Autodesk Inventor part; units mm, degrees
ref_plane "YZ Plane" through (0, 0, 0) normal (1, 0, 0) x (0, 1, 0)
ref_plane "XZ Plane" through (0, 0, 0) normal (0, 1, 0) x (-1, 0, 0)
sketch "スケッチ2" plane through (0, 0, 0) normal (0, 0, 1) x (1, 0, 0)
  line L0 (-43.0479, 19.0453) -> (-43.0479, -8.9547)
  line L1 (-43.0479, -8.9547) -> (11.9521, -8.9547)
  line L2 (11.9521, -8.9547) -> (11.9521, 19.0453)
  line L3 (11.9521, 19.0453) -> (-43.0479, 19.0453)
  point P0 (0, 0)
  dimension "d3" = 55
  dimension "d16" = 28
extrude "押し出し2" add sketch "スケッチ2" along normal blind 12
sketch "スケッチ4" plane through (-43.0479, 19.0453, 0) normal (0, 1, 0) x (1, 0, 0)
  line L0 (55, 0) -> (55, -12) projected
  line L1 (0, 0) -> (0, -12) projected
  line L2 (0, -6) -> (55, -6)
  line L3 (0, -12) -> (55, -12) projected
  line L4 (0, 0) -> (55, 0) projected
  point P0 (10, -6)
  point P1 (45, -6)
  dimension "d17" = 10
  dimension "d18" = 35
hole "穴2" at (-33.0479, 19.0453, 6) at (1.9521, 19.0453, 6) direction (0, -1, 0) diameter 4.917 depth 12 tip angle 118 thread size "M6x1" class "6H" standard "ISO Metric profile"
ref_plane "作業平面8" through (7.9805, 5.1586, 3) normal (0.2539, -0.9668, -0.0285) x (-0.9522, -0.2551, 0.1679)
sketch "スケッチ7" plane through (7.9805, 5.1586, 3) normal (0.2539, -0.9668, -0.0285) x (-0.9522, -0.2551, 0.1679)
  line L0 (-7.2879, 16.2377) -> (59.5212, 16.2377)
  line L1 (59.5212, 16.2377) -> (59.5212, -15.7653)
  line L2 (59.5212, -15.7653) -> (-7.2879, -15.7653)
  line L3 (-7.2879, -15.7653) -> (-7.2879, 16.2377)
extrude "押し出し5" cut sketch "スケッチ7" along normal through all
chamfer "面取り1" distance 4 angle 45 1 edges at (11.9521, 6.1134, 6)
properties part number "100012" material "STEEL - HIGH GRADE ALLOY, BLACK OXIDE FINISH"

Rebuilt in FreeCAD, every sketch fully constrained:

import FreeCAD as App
import Part
import Sketcher
from FreeCAD import Vector


def edges_at(feature, points):
    """Names of the edges that pass closest to the given points."""
    edges = feature.Shape.Edges
    near = lambda p: min(range(len(edges)), key=lambda i: edges[i].distToShape(Part.Vertex(*p))[0])
    return sorted({f"Edge{near(p) + 1}" for p in points})

doc = App.newDocument("Part")
body = doc.addObject("PartDesign::Body", "Body")

sketch1 = body.newObject("Sketcher::SketchObject", "Sketch")
sketch1.AttachmentSupport = (doc.getObject("XY_Plane"), [""])
sketch1.MapMode = "FlatFace"
sketch1.addGeometry([
    Part.LineSegment(Vector(11.9521, 19.0453, 0), Vector(-43.0479, 19.0453, 0)),
    Part.LineSegment(Vector(-43.0479, 19.0453, 0), Vector(-43.0479, -8.9547, 0)),
    Part.LineSegment(Vector(-43.0479, -8.9547, 0), Vector(11.9521, -8.9547, 0)),
    Part.LineSegment(Vector(11.9521, -8.9547, 0), Vector(11.9521, 19.0453, 0)),
], False)
sketch1.addConstraint([
    Sketcher.Constraint("Coincident", 0, 2, 1, 1),
    Sketcher.Constraint("Coincident", 1, 2, 2, 1),
    Sketcher.Constraint("Coincident", 2, 2, 3, 1),
    Sketcher.Constraint("Coincident", 3, 2, 0, 1),
    Sketcher.Constraint("Horizontal", 0),
    Sketcher.Constraint("Vertical", 1),
    Sketcher.Constraint("Horizontal", 2),
    Sketcher.Constraint("Vertical", 3),
    Sketcher.Constraint("DistanceX", 0, 2, 0, 1, 55.0),
    Sketcher.Constraint("DistanceY", 1, 2, 1, 1, 28.0),
    Sketcher.Constraint("DistanceX", 0, 2, -1, 1, 43.048),
    Sketcher.Constraint("DistanceY", -1, 1, 0, 2, 19.0453),
])
pad1 = body.newObject("PartDesign::Pad", "Pad")
pad1.Profile = sketch1
pad1.Length = 12

sketch2 = body.newObject("Sketcher::SketchObject", "Sketch001")
sketch2.AttachmentSupport = (doc.getObject("XZ_Plane"), [""])
sketch2.MapMode = "FlatFace"
sketch2.AttachmentOffset = App.Placement(Vector(0, 0, -19.0453), App.Rotation())
sketch2.addGeometry([
    Part.Circle(Vector(-33.0479, 6, 0), Vector(0, 0, 1), 2.4585),
    Part.Circle(Vector(1.9521, 6, 0), Vector(0, 0, 1), 2.4585),
], False)
sketch2.addConstraint([
    Sketcher.Constraint("Equal", 0, 1),
    Sketcher.Constraint("Horizontal", 0, 3, 1, 3),
    Sketcher.Constraint("Diameter", 0, 4.917),
    Sketcher.Constraint("DistanceY", -1, 1, 0, 3, 6.0),
    Sketcher.Constraint("DistanceX", 0, 3, 1, 3, 35.0),
    Sketcher.Constraint("DistanceX", 0, 3, -1, 1, 33.048),
])
doc.recompute()
hole = body.newObject("PartDesign::Hole", "Hole")
hole.Profile = sketch2
hole.ThreadType = "None"
hole.Diameter = 4.917
hole.DepthType = "Dimension"
hole.Depth = 12
hole.DrillPoint = "Angled"
hole.DrillPointAngle = 118
hole.Reversed = True

sketch3 = body.newObject("Sketcher::SketchObject", "Sketch002")
sketch3.Placement = App.Placement(Vector(7.9805, 5.1586, 3), App.Rotation(Vector(-0.952244017, -0.255026985, 0.167906428), Vector(-0.169601925, -0.015492645, -0.985390869), Vector(0.253902577, -0.966809813, -0.028500289), "ZXY"))
sketch3.addGeometry([
    Part.LineSegment(Vector(59.5212, 16.2377, 0), Vector(-7.2879, 16.2377, 0)),
    Part.LineSegment(Vector(-7.2879, 16.2377, 0), Vector(-7.2879, -15.7653, 0)),
    Part.LineSegment(Vector(-7.2879, -15.7653, 0), Vector(59.5212, -15.7653, 0)),
    Part.LineSegment(Vector(59.5212, -15.7653, 0), Vector(59.5212, 16.2377, 0)),
], False)
sketch3.addConstraint([
    Sketcher.Constraint("Coincident", 0, 2, 1, 1),
    Sketcher.Constraint("Coincident", 1, 2, 2, 1),
    Sketcher.Constraint("Coincident", 2, 2, 3, 1),
    Sketcher.Constraint("Coincident", 3, 2, 0, 1),
    Sketcher.Constraint("Horizontal", 0),
    Sketcher.Constraint("Vertical", 1),
    Sketcher.Constraint("Horizontal", 2),
    Sketcher.Constraint("Vertical", 3),
    Sketcher.Constraint("DistanceX", 0, 2, 0, 1, 66.809),
    Sketcher.Constraint("DistanceY", 1, 2, 1, 1, 32.003),
    Sketcher.Constraint("DistanceX", 0, 2, -1, 1, 7.288),
    Sketcher.Constraint("DistanceY", -1, 1, 0, 2, 16.2377),
])
pocket1 = body.newObject("PartDesign::Pocket", "Pocket")
pocket1.Profile = sketch3
pocket1.Type = "ThroughAll"
pocket1.Reversed = True
doc.recompute()

chamfer = body.newObject("PartDesign::Chamfer", "Chamfer")
chamfer.Base = (pocket1, edges_at(pocket1, [(11.952, 6.113, 6)]))
chamfer.Size = 4

doc.recompute()
